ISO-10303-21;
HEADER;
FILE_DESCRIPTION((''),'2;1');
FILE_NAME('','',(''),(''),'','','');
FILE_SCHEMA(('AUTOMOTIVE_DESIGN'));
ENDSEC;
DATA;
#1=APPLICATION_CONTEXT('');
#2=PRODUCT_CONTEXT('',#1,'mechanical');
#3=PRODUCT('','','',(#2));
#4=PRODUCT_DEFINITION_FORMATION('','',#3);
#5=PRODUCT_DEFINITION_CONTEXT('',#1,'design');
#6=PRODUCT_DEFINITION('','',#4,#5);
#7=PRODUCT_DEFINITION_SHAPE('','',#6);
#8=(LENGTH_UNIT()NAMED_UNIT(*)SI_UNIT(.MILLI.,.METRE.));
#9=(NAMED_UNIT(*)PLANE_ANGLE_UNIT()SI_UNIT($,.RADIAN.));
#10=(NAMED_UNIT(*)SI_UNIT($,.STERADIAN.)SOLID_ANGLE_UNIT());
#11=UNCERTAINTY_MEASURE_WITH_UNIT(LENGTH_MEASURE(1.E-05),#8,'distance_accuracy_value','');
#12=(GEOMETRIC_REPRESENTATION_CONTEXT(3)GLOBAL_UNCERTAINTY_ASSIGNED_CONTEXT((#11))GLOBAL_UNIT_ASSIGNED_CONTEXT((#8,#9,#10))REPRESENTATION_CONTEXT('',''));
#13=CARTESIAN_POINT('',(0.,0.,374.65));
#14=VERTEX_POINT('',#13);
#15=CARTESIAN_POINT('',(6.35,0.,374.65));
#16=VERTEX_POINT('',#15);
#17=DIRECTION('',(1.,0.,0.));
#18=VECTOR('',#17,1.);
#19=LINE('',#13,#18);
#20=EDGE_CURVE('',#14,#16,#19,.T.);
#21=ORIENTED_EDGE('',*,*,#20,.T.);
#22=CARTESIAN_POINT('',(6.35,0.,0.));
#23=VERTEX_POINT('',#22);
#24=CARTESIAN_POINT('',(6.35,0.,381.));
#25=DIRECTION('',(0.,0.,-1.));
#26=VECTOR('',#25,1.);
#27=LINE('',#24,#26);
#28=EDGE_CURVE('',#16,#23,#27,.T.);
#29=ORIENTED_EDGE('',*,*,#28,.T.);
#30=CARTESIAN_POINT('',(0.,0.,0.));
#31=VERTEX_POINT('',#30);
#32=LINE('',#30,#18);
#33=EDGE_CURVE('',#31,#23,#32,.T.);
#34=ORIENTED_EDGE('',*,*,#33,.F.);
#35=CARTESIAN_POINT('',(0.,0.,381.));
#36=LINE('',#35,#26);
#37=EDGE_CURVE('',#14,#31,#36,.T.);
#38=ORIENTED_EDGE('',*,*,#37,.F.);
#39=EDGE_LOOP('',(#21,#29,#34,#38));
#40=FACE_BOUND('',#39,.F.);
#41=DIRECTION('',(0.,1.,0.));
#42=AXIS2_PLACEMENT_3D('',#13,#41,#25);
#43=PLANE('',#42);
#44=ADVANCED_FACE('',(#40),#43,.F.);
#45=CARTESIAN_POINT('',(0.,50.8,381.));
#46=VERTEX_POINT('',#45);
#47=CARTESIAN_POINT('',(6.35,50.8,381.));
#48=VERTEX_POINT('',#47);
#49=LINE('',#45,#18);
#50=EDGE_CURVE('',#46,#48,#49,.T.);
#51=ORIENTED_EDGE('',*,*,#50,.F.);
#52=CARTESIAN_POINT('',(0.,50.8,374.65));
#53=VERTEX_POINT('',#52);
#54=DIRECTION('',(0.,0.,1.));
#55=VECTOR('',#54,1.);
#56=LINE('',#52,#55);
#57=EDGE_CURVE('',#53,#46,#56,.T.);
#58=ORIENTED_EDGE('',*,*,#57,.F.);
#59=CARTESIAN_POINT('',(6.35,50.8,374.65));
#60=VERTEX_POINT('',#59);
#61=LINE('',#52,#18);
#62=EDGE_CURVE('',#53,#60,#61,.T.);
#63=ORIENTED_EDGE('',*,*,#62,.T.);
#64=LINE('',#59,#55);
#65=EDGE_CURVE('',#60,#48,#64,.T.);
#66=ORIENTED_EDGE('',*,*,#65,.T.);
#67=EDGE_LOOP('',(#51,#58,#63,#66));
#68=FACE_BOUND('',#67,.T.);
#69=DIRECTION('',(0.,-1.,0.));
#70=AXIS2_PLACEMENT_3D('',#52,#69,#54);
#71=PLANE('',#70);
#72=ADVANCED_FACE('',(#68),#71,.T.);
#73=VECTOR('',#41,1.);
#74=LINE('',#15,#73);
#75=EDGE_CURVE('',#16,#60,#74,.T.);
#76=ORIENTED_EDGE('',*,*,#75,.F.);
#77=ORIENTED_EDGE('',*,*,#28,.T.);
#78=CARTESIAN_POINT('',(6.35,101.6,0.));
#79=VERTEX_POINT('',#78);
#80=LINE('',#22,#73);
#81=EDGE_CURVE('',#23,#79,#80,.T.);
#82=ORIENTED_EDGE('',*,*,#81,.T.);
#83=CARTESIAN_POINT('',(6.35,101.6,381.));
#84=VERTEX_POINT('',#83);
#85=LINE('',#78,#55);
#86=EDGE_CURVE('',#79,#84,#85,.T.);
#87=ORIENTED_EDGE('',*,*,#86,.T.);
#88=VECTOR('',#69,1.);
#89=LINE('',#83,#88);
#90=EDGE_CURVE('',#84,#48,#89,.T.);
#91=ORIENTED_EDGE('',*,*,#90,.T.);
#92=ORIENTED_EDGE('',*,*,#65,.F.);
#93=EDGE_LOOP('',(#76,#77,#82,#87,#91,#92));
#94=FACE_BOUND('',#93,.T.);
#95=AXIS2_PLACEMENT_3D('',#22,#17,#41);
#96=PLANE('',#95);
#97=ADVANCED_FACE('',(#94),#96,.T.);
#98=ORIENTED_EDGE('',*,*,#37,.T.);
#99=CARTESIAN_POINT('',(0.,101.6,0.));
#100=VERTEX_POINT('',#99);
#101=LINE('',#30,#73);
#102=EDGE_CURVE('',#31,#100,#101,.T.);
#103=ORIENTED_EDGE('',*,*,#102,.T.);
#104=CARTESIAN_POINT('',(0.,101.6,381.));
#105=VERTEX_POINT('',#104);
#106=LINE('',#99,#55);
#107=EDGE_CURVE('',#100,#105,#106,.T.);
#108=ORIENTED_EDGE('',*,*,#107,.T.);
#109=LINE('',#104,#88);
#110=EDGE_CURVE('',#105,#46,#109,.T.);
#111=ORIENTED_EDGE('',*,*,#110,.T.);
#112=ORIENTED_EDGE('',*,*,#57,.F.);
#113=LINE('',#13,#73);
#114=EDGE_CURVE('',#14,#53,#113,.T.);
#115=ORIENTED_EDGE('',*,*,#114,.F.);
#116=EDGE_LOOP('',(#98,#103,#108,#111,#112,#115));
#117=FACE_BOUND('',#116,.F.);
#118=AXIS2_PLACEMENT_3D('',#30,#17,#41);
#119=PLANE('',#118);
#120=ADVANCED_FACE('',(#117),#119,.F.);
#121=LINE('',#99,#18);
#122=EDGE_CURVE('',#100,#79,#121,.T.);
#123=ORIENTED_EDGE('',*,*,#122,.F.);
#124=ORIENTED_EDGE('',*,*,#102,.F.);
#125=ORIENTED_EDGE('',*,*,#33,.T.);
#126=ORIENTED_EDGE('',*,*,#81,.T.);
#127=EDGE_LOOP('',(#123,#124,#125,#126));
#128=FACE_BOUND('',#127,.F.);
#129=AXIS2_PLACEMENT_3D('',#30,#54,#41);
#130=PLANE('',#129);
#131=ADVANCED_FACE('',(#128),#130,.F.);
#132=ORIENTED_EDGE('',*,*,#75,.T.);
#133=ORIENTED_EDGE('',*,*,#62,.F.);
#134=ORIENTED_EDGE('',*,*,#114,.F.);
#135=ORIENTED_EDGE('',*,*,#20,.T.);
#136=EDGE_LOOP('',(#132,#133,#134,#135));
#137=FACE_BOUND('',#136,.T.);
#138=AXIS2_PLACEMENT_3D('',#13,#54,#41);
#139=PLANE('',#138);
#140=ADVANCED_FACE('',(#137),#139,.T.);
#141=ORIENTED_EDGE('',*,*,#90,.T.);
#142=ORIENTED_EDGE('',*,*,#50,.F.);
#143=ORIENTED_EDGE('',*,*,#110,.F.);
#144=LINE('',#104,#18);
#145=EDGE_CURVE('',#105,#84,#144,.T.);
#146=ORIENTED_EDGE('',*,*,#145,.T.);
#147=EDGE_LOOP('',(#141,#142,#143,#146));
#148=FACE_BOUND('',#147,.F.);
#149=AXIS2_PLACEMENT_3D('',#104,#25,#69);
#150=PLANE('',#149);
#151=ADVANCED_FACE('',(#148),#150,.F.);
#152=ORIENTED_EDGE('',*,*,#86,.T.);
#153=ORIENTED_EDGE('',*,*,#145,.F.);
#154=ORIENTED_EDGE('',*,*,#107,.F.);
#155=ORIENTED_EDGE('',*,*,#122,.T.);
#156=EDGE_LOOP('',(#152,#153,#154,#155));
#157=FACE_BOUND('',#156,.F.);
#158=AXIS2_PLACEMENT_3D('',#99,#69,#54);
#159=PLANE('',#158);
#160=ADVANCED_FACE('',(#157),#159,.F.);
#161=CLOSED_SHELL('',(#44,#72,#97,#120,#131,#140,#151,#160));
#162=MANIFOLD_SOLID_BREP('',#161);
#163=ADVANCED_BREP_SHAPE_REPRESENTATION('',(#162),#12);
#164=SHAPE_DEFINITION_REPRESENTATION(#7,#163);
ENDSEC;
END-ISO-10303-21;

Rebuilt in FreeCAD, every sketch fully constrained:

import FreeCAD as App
import Part
import Sketcher
Q = App.Units.Quantity


def add_polygon(sketch, points):
    """Adds a closed chain of lines whose ends are joined by coincident constraints."""
    first, n = sketch.GeometryCount, len(points)
    for a, b in zip(points, points[1:] + points[:1]):
        sketch.addGeometry(Part.LineSegment(App.Vector(*a, 0), App.Vector(*b, 0)), False)
    for i in range(n):
        sketch.addConstraint(Sketcher.Constraint("Coincident", first + i, 2, first + (i + 1) % n, 1))

doc = App.newDocument("Part")
body = doc.addObject("PartDesign::Body", "Body")

sketch1 = body.newObject("Sketcher::SketchObject", "Sketch")
sketch1.AttachmentSupport = (doc.getObject("YZ_Plane"), [""])
sketch1.MapMode = "FlatFace"
add_polygon(sketch1, [(0, 375), (0, 0), (102, 0), (102, 381), (51, 381), (51, 375)])
sketch1.addConstraint([
    Sketcher.Constraint("Vertical", 0),
    Sketcher.Constraint("Horizontal", 1),
    Sketcher.Constraint("Vertical", 2),
    Sketcher.Constraint("Horizontal", 3),
    Sketcher.Constraint("Vertical", 4),
    Sketcher.Constraint("Horizontal", 5),
    Sketcher.Constraint("Coincident", 0, 2, -1, 1),
    Sketcher.Constraint("Equal", 3, 5),
    Sketcher.Constraint("DistanceX", 1, 1, 1, 2, Q("4 in")),
    Sketcher.Constraint("DistanceY", 2, 1, 2, 2, Q("15 in")),
    Sketcher.Constraint("DistanceY", 4, 2, 4, 1, Q("0.25 in")),
])
pad1 = body.newObject("PartDesign::Pad", "Pad")
pad1.Profile = sketch1
pad1.Length = Q("0.25 in")

doc.recompute()
